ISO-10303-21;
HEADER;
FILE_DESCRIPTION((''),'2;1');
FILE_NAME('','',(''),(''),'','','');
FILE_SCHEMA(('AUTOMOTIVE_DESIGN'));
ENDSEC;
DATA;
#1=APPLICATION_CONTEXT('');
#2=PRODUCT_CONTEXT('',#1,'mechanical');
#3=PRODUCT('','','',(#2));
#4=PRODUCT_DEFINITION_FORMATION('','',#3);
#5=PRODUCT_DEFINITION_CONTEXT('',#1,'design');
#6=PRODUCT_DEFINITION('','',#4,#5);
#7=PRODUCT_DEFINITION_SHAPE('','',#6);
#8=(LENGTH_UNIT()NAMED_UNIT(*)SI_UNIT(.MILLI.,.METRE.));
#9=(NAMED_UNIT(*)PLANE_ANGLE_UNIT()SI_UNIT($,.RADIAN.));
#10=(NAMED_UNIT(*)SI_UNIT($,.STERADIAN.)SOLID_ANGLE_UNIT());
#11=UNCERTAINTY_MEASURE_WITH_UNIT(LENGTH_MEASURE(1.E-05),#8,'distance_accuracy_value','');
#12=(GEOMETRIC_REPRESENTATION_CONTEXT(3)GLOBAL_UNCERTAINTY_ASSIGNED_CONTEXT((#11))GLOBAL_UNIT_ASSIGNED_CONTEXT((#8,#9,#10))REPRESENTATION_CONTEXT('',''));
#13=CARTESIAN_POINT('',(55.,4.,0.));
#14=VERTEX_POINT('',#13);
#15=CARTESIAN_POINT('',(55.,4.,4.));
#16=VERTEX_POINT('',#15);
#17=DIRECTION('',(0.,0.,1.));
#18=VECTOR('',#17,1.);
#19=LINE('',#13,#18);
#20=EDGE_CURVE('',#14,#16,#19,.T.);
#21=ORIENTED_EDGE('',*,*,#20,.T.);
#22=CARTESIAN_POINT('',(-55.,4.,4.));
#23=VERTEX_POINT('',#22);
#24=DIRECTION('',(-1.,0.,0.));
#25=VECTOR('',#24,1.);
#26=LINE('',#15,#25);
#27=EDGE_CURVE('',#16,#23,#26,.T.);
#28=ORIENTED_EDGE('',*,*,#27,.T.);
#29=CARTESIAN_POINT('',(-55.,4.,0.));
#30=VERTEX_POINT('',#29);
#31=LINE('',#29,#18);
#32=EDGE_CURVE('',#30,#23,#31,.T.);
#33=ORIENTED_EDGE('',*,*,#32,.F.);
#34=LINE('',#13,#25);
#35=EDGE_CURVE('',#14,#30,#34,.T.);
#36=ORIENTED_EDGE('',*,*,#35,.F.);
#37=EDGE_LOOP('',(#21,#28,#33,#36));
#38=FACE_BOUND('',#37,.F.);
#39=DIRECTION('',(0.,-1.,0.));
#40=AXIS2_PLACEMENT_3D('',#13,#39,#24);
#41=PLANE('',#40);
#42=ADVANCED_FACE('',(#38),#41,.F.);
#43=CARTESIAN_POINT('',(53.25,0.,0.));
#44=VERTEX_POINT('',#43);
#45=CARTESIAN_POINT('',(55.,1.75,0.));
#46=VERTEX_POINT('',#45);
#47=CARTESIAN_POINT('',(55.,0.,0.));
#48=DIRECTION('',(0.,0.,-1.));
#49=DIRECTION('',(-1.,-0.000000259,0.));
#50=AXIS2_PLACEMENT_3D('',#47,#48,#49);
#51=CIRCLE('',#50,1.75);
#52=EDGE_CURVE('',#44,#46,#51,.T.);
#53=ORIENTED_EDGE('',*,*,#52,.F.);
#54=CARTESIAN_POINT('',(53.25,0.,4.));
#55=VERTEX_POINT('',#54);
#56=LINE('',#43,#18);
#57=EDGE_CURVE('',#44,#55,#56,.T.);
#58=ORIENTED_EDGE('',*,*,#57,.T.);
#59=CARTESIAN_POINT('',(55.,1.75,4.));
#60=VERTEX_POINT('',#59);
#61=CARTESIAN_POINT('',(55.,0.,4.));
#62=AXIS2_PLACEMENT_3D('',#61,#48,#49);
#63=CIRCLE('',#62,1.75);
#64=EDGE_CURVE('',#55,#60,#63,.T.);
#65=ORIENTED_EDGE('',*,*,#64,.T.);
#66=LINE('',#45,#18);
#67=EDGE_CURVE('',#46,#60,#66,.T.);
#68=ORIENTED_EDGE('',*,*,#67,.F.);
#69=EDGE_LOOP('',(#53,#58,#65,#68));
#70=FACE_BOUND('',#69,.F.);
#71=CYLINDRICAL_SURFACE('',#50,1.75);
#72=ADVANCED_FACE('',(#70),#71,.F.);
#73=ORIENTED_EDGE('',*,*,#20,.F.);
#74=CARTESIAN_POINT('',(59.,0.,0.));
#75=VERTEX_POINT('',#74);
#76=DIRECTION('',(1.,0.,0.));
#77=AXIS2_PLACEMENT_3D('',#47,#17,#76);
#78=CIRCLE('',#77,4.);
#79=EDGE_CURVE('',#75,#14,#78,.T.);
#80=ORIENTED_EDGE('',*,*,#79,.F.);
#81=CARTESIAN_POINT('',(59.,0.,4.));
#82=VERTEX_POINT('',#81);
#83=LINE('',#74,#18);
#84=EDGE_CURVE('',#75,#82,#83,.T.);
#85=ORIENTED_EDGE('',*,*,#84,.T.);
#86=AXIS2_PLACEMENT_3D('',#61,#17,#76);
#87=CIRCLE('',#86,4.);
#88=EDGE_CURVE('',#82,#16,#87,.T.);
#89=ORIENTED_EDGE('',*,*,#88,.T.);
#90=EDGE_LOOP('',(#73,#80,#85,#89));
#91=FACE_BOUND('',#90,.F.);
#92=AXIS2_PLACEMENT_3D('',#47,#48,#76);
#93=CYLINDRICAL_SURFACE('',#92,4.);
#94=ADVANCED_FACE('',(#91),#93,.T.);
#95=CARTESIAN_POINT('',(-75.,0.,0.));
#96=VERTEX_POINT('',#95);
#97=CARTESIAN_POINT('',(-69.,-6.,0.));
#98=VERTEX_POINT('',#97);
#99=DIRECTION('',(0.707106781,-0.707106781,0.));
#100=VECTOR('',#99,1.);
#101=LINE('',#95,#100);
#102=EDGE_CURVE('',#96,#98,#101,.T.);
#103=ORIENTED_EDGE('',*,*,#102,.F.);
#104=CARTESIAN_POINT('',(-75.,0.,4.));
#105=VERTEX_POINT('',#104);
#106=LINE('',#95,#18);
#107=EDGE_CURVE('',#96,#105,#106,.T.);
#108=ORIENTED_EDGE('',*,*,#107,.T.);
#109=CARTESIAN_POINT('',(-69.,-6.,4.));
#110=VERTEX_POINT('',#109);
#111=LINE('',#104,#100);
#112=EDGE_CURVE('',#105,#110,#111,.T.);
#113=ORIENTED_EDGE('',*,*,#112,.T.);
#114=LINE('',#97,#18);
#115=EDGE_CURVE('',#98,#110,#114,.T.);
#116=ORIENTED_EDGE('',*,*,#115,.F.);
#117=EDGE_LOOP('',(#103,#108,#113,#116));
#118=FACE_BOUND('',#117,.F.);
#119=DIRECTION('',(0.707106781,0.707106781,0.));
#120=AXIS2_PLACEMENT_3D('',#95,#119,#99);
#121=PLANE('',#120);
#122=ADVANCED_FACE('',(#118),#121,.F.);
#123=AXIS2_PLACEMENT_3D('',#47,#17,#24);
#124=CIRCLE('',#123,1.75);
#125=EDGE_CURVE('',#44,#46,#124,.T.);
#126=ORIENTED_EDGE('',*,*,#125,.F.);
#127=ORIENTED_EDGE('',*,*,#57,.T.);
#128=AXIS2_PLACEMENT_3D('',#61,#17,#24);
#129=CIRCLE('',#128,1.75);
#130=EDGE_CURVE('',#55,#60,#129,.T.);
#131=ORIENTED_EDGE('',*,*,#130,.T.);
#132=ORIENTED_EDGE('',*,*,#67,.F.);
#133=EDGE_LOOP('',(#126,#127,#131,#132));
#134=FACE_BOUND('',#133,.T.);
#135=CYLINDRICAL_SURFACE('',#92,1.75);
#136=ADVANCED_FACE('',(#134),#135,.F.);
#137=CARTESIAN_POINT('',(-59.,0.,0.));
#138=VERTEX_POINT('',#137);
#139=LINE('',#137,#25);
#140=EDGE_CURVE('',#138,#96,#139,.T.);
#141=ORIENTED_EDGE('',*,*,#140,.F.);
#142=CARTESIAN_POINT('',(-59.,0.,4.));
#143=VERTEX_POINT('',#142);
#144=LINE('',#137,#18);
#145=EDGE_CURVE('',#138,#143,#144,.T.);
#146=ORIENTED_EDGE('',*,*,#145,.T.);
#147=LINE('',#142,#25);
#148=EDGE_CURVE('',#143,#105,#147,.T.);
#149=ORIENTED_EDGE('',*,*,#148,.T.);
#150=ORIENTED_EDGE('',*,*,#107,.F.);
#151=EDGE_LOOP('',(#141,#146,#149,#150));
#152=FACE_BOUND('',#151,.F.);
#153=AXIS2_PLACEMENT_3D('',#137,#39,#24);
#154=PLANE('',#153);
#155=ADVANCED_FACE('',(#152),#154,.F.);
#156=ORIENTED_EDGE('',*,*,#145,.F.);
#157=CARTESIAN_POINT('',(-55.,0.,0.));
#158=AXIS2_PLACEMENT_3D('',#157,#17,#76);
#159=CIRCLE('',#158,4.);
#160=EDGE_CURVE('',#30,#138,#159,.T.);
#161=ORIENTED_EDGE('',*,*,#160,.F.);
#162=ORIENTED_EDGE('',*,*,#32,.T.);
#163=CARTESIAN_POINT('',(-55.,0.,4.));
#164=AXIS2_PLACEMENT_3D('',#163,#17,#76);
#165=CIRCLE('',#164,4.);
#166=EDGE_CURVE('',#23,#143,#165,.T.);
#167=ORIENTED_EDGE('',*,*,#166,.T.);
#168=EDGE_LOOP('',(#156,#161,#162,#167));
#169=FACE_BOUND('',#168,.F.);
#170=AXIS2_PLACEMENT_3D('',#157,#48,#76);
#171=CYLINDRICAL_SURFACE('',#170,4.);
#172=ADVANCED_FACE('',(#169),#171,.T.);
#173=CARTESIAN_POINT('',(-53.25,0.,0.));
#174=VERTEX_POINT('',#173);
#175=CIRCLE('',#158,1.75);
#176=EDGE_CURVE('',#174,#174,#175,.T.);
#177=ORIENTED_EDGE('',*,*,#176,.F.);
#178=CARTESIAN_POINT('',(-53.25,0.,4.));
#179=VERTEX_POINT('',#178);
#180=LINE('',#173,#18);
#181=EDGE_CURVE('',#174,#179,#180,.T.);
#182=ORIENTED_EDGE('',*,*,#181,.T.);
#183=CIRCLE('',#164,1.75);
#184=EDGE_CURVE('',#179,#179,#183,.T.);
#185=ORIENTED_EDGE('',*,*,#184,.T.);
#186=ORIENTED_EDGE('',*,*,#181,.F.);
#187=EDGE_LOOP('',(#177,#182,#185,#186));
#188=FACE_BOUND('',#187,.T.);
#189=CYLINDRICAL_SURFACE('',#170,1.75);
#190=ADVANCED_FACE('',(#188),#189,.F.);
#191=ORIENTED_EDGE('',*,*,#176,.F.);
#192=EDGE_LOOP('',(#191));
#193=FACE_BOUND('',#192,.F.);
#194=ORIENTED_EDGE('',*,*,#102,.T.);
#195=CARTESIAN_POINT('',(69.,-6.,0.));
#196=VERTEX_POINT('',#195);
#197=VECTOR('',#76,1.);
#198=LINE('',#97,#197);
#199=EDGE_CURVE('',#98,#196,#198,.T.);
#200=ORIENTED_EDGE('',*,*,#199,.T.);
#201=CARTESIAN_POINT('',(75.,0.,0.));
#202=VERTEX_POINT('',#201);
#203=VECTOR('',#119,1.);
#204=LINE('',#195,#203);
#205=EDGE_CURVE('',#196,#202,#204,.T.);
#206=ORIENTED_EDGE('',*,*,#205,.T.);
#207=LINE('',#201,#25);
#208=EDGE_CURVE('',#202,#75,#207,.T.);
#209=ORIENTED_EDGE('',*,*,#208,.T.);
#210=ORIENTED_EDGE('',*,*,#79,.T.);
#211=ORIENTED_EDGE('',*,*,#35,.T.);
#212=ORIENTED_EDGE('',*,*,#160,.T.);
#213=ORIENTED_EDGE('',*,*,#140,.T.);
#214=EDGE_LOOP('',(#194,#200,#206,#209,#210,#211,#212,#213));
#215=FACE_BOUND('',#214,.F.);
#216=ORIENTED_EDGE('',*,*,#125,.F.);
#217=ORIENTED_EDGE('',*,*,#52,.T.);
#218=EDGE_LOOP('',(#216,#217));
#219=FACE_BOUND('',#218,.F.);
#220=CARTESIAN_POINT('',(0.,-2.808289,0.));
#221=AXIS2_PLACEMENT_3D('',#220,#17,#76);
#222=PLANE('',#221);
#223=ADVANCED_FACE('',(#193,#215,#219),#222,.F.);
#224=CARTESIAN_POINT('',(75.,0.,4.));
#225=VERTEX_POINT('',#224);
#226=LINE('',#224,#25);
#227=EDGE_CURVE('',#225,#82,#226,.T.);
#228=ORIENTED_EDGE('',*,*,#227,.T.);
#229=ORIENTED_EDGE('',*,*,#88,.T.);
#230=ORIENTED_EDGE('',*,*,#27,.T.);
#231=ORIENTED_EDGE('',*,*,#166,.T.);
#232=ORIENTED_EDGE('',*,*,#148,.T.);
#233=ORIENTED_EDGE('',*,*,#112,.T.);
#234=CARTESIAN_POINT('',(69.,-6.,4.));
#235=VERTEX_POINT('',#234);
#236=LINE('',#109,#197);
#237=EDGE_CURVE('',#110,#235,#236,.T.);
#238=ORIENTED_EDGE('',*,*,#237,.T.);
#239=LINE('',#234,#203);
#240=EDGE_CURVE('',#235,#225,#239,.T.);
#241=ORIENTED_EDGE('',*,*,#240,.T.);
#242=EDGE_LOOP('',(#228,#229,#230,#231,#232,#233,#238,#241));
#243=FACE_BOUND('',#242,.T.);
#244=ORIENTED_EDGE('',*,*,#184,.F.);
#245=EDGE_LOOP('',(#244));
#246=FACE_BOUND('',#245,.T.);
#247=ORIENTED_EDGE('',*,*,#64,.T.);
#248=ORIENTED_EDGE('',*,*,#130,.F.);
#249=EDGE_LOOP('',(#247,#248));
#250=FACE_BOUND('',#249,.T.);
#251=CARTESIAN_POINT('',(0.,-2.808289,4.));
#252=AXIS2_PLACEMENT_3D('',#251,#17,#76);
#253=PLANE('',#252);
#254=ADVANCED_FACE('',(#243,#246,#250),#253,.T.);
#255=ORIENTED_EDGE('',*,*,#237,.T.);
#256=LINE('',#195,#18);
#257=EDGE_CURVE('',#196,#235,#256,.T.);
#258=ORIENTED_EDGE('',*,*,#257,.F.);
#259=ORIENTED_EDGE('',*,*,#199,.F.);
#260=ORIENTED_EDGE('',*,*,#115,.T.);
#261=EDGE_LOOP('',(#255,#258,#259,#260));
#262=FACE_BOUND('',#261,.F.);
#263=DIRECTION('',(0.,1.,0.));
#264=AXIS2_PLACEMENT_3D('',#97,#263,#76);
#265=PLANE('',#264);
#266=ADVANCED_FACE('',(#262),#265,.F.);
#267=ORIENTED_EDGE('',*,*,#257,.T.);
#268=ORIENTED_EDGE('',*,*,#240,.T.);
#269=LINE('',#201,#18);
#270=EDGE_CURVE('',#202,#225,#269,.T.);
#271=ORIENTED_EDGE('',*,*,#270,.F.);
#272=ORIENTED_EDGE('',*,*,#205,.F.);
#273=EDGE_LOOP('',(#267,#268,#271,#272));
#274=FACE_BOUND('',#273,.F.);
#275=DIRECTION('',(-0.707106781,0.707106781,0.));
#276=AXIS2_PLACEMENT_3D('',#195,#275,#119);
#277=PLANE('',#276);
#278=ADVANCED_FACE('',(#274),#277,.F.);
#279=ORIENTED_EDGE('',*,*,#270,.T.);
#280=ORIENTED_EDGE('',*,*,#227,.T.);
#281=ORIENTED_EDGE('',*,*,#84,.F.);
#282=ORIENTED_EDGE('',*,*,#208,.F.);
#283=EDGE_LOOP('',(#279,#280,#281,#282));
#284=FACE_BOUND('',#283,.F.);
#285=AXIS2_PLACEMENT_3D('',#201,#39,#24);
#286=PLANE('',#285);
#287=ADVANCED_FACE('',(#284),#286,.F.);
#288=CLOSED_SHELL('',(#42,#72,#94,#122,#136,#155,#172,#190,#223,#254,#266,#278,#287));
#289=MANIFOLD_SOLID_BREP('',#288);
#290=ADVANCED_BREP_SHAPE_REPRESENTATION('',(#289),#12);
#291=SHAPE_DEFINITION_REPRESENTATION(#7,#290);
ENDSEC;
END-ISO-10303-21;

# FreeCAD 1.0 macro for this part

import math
import FreeCAD as App
import Part
import Sketcher

V = App.Vector

doc = App.newDocument("Part")
body = doc.addObject("PartDesign::Body", "Body")

# Sketch on XY plane
sketch1 = body.newObject("Sketcher::SketchObject", "Sketch")
sketch1.AttachmentSupport = (doc.getObject("XY_Plane"), [""])
sketch1.MapMode = "FlatFace"
sketch1.addGeometry([
    Part.LineSegment(V(51, 0, 0), V(-51, 0, 0)),  # 0
    Part.ArcOfCircle(Part.Circle(V(-55, 0, 0), V(0, 0, 1), 4), math.radians(0), math.radians(180)),  # 1
    Part.LineSegment(V(-59, 0, 0), V(-75, 0, 0)),  # 2
    Part.LineSegment(V(-75, 0, 0), V(-69, -6, 0)),  # 3
    Part.LineSegment(V(-69, -6, 0), V(69, -6, 0)),  # 4
    Part.LineSegment(V(69, -6, 0), V(75, 0, 0)),  # 5
    Part.LineSegment(V(75, 0, 0), V(59, 0, 0)),  # 6
    Part.ArcOfCircle(Part.Circle(V(55, 0, 0), V(0, 0, 1), 4), math.radians(0), math.radians(180)),  # 7
    Part.Circle(V(-55, 0, 0), V(0, 0, 1), 1.75),  # 8
    Part.Circle(V(55, 0, 0), V(0, 0, 1), 1.75),  # 9
], False)
sketch1.addConstraint([
    Sketcher.Constraint("Coincident", 0, 2, 1, 1),
    Sketcher.Constraint("Coincident", 1, 2, 2, 1),
    Sketcher.Constraint("Coincident", 2, 2, 3, 1),
    Sketcher.Constraint("Coincident", 3, 2, 4, 1),
    Sketcher.Constraint("Coincident", 4, 2, 5, 1),
    Sketcher.Constraint("Coincident", 5, 2, 6, 1),
    Sketcher.Constraint("Coincident", 6, 2, 7, 1),
    Sketcher.Constraint("Coincident", 7, 2, 0, 1),
    Sketcher.Constraint("Horizontal", 0),
    Sketcher.Constraint("Horizontal", 2),
    Sketcher.Constraint("Horizontal", 4),
    Sketcher.Constraint("Horizontal", 6),
    Sketcher.Constraint("Coincident", 8, 3, 1, 3),
    Sketcher.Constraint("Coincident", 9, 3, 7, 3),
    Sketcher.Constraint("Equal", 1, 7),
    Sketcher.Constraint("Equal", 8, 9),
    Sketcher.Constraint("Symmetric", 1, 3, 7, 3, -1, 1),
    Sketcher.Constraint("Symmetric", 2, 2, 5, 2, -1, 1),
    Sketcher.Constraint("PointOnObject", 1, 3, -1),
    Sketcher.Constraint("PointOnObject", 0, 2, -1),
    Sketcher.Constraint("PointOnObject", 1, 2, -1),
    Sketcher.Constraint("Perpendicular", 3, 5),
    Sketcher.Constraint("Equal", 3, 5),
    Sketcher.Constraint("Radius", 1, 4.0),
    Sketcher.Constraint("Diameter", 8, 3.5),
    Sketcher.Constraint("DistanceX", 0, 2, 0, 1, 102.0),
    Sketcher.Constraint("DistanceX", 2, 2, 2, 1, 16.0),
    Sketcher.Constraint("DistanceX", 4, 1, 4, 2, 138.0),
])
pad1 = body.newObject("PartDesign::Pad", "Pad")
pad1.Profile = sketch1
pad1.Length = 4

# Sketch on XY plane
sketch2 = body.newObject("Sketcher::SketchObject", "Sketch001")
sketch2.AttachmentSupport = (doc.getObject("XY_Plane"), [""])
sketch2.MapMode = "FlatFace"
sketch2.addGeometry([
    Part.LineSegment(V(-53.25, 0, 0), V(53.25, 0, 0)),  # 0
    Part.ArcOfCircle(Part.Circle(V(55, 0, 0), V(0, 0, 1), 1.75), math.radians(89.999985), math.radians(180.000015)),  # 1
    Part.LineSegment(V(55, 1.75, 0), V(55, 4, 0)),  # 2
    Part.LineSegment(V(55, 4, 0), V(-55, 4, 0)),  # 3
    Part.LineSegment(V(-55, 4, 0), V(-55, 1.75, 0)),  # 4
    Part.ArcOfCircle(Part.Circle(V(-55, 0, 0), V(0, 0, 1), 1.75), math.radians(-0.000015), math.radians(90.000015)),  # 5
], False)
sketch2.addConstraint([
    Sketcher.Constraint("Coincident", 0, 2, 1, 2),
    Sketcher.Constraint("Coincident", 1, 1, 2, 1),
    Sketcher.Constraint("Coincident", 2, 2, 3, 1),
    Sketcher.Constraint("Coincident", 3, 2, 4, 1),
    Sketcher.Constraint("Coincident", 4, 2, 5, 2),
    Sketcher.Constraint("Coincident", 5, 1, 0, 1),
    Sketcher.Constraint("Horizontal", 0),
    Sketcher.Constraint("Vertical", 2),
    Sketcher.Constraint("Horizontal", 3),
    Sketcher.Constraint("Vertical", 4),
    Sketcher.Constraint("Equal", 1, 5),
    Sketcher.Constraint("Symmetric", 1, 3, 5, 3, -1, 1),
    Sketcher.Constraint("Symmetric", 1, 1, 4, 2, -2),
    Sketcher.Constraint("PointOnObject", 0, 2, -1),
    Sketcher.Constraint("Vertical", 5, 3, 3, 2),
    Sketcher.Constraint("DistanceX", 3, 2, 3, 1, 110.0),
    Sketcher.Constraint("Radius", 1, 1.75),
    Sketcher.Constraint("DistanceY", -1, 1, 2, 2, 4.0),
])
pad2 = body.newObject("PartDesign::Pad", "Pad001")
pad2.Profile = sketch2
pad2.Length = 4

doc.recompute()
